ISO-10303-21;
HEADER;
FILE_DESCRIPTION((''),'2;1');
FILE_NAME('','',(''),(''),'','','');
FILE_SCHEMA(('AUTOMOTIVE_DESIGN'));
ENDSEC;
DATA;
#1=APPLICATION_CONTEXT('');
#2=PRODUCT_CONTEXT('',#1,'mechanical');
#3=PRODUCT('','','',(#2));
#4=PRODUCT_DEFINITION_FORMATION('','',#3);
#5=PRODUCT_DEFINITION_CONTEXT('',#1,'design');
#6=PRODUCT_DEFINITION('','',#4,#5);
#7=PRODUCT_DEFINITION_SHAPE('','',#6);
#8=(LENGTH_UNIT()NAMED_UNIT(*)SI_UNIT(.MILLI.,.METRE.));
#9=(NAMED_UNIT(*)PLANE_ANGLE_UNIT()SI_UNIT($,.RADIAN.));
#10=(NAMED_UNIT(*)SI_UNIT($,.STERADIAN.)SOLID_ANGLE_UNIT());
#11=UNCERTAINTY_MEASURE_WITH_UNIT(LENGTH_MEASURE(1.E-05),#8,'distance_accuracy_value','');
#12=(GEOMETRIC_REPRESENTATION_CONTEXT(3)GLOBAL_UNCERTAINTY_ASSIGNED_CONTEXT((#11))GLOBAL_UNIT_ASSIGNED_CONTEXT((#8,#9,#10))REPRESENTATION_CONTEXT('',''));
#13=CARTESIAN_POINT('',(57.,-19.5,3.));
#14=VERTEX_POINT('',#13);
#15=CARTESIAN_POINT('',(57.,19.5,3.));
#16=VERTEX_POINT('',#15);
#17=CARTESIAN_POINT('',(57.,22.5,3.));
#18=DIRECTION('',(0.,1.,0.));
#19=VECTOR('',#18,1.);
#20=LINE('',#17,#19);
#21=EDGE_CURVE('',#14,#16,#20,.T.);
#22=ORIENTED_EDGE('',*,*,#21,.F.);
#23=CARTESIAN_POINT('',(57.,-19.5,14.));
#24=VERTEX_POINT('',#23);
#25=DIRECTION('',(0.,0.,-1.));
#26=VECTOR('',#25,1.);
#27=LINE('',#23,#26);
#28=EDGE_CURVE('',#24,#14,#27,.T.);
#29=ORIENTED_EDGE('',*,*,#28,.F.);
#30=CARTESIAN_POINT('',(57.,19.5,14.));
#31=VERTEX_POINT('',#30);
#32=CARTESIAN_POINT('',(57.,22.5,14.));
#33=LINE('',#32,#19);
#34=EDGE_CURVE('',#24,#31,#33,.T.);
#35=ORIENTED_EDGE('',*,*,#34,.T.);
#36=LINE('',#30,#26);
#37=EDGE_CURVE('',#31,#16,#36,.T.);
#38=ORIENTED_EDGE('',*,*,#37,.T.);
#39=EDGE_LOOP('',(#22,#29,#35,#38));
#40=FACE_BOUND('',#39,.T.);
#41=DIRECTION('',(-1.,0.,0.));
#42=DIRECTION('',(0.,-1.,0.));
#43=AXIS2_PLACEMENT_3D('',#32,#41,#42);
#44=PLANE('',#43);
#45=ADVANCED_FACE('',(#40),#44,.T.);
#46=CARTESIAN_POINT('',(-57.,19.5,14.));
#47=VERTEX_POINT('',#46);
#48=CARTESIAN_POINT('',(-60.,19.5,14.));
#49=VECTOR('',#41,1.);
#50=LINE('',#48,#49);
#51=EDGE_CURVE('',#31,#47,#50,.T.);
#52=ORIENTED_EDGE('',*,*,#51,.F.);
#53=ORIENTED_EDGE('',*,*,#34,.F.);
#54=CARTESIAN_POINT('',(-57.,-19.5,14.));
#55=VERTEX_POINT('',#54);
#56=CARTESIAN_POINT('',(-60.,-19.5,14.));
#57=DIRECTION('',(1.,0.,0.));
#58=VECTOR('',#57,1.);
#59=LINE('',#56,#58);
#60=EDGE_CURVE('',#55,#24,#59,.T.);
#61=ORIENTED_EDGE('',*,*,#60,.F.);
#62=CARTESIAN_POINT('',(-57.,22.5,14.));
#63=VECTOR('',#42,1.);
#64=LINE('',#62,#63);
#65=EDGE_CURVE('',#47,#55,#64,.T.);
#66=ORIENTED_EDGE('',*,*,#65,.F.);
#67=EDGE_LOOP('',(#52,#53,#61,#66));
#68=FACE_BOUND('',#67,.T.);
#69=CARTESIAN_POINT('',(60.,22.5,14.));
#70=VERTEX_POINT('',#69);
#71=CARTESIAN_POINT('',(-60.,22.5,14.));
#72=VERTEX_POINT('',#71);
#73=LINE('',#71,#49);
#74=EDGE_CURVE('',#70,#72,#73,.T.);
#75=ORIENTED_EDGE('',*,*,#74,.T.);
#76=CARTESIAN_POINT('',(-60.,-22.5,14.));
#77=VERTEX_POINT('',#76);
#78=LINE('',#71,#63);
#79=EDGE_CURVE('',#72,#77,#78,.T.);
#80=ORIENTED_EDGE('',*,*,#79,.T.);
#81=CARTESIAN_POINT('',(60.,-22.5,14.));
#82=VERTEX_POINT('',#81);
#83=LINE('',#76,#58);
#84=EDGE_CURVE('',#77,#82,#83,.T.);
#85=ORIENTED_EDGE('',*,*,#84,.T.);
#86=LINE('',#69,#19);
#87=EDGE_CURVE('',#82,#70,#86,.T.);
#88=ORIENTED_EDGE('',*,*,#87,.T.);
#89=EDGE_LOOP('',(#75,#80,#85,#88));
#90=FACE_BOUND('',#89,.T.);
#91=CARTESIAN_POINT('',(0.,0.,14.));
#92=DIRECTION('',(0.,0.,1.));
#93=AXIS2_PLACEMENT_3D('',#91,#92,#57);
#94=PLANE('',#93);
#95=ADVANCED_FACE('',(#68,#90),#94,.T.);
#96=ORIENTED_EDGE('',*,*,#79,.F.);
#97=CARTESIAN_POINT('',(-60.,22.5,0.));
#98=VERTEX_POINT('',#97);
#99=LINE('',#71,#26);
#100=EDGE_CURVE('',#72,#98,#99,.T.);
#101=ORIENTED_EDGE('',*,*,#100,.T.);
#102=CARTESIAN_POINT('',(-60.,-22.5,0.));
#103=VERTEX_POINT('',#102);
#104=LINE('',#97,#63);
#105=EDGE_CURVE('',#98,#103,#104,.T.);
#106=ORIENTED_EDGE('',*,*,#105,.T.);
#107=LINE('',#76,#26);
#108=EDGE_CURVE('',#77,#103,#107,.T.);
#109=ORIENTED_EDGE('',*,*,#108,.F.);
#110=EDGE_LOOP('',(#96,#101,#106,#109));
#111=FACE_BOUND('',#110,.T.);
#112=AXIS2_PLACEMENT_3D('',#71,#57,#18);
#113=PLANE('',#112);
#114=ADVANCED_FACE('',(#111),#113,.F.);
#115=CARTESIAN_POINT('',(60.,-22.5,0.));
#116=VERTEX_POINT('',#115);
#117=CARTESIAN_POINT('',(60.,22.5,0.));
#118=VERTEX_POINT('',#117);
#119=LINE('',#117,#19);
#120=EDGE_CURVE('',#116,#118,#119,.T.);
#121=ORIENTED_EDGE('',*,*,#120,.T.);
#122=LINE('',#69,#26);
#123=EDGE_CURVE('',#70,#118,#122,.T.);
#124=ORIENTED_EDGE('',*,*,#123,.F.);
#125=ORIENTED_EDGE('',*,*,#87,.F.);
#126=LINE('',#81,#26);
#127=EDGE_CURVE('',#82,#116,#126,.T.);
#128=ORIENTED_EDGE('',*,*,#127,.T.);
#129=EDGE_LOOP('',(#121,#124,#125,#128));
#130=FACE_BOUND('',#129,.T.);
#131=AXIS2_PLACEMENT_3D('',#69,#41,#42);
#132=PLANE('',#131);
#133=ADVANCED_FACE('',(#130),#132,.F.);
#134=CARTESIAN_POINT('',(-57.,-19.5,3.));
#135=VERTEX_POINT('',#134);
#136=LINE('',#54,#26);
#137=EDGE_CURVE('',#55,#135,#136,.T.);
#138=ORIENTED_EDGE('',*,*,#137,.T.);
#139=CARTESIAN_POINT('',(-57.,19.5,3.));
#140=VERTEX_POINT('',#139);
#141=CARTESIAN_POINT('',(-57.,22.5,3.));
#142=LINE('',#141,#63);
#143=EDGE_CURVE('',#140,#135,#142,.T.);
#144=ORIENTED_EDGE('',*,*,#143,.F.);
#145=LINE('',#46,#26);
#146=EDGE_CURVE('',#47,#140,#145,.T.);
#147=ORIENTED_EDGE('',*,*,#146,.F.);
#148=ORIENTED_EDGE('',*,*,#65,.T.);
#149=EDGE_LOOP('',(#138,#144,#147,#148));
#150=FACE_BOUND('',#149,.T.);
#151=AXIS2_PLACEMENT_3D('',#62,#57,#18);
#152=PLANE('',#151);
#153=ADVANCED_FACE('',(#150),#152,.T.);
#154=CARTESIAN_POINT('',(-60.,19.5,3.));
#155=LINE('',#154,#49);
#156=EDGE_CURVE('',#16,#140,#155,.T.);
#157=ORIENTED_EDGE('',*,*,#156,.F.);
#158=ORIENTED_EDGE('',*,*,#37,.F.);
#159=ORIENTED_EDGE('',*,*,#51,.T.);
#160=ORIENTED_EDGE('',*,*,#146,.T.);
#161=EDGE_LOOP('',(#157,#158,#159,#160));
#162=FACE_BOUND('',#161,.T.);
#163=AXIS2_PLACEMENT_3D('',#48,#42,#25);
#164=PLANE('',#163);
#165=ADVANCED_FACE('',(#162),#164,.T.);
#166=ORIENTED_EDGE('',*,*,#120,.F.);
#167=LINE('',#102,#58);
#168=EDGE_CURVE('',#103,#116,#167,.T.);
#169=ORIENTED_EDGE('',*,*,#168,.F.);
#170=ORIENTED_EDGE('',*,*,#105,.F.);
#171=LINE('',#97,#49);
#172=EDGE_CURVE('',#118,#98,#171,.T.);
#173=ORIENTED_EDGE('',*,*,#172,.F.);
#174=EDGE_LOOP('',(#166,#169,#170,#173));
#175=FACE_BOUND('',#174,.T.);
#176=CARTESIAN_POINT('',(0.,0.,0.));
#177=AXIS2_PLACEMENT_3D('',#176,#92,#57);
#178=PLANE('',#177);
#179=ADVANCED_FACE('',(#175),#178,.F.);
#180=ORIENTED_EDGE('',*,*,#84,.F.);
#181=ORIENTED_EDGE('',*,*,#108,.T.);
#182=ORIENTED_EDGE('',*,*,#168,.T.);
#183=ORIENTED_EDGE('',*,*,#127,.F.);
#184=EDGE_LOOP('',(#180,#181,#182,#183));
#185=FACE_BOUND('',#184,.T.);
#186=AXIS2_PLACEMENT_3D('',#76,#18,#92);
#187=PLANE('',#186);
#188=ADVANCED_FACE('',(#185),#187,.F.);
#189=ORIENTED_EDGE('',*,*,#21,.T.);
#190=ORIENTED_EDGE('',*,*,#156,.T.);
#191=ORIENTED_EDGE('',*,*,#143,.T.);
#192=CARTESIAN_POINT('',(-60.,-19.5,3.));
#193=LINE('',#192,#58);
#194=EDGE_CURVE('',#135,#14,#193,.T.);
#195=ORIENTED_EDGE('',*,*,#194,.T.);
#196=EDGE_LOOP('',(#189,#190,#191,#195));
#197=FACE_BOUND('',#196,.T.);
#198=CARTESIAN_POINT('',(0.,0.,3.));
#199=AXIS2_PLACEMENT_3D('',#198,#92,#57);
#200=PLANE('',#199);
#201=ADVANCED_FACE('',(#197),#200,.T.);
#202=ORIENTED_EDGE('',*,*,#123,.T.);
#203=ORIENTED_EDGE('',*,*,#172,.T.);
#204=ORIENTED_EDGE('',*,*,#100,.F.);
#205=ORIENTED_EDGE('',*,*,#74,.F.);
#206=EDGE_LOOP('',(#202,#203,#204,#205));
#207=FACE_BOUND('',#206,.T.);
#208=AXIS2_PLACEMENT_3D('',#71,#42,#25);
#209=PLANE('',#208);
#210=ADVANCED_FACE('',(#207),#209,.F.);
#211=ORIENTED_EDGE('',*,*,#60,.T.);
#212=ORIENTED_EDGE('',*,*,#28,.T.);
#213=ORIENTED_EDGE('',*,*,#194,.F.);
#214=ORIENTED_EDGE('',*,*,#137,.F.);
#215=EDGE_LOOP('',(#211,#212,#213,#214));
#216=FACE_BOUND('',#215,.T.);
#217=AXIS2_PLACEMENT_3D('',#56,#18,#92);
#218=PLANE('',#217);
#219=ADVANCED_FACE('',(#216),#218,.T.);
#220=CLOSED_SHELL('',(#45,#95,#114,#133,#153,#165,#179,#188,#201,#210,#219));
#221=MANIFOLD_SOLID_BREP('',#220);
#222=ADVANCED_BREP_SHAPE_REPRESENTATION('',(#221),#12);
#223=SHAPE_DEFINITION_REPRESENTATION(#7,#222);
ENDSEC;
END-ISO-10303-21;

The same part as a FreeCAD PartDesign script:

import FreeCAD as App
import Part
import Sketcher
from FreeCAD import Vector


def faces_at(feature, points):
    """Names of the faces that lie closest to the given points."""
    faces = feature.Shape.Faces
    near = lambda p: min(range(len(faces)), key=lambda i: faces[i].distToShape(Part.Vertex(*p))[0])
    return sorted({f"Face{near(p) + 1}" for p in points})


def add_polygon(sketch, points):
    """Adds a closed chain of lines whose ends are joined by coincident constraints."""
    first, n = sketch.GeometryCount, len(points)
    for a, b in zip(points, points[1:] + points[:1]):
        sketch.addGeometry(Part.LineSegment(App.Vector(*a, 0), App.Vector(*b, 0)), False)
    for i in range(n):
        sketch.addConstraint(Sketcher.Constraint("Coincident", first + i, 2, first + (i + 1) % n, 1))

doc = App.newDocument("Part")
body = doc.addObject("PartDesign::Body", "Body")

# Sketch on XY plane
sketch1 = body.newObject("Sketcher::SketchObject", "Sketch")
sketch1.AttachmentSupport = (doc.getObject("XY_Plane"), [""])
sketch1.MapMode = "FlatFace"
add_polygon(sketch1, [(-60, 22), (-60, -22), (60, -22), (60, 22)])  # lines 0-3
sketch1.addConstraint([
    Sketcher.Constraint("Vertical", 0),
    Sketcher.Constraint("Horizontal", 1),
    Sketcher.Constraint("Vertical", 2),
    Sketcher.Constraint("Horizontal", 3),
    Sketcher.Constraint("Symmetric", 0, 2, 2, 2, -1, 1),
    Sketcher.Constraint("DistanceX", 1, 1, 1, 2, 120.0),
    Sketcher.Constraint("DistanceY", 0, 2, 0, 1, 45.0),
])
pad1 = body.newObject("PartDesign::Pad", "Pad")
pad1.Profile = sketch1
pad1.Length = 14
doc.recompute()

thickness = body.newObject("PartDesign::Thickness", "Thickness")
thickness.Base = (pad1, faces_at(pad1, [(0, 0, 14)]))
thickness.Value = 3
thickness.Reversed = True
thickness.Join = "Intersection"

doc.recompute()
